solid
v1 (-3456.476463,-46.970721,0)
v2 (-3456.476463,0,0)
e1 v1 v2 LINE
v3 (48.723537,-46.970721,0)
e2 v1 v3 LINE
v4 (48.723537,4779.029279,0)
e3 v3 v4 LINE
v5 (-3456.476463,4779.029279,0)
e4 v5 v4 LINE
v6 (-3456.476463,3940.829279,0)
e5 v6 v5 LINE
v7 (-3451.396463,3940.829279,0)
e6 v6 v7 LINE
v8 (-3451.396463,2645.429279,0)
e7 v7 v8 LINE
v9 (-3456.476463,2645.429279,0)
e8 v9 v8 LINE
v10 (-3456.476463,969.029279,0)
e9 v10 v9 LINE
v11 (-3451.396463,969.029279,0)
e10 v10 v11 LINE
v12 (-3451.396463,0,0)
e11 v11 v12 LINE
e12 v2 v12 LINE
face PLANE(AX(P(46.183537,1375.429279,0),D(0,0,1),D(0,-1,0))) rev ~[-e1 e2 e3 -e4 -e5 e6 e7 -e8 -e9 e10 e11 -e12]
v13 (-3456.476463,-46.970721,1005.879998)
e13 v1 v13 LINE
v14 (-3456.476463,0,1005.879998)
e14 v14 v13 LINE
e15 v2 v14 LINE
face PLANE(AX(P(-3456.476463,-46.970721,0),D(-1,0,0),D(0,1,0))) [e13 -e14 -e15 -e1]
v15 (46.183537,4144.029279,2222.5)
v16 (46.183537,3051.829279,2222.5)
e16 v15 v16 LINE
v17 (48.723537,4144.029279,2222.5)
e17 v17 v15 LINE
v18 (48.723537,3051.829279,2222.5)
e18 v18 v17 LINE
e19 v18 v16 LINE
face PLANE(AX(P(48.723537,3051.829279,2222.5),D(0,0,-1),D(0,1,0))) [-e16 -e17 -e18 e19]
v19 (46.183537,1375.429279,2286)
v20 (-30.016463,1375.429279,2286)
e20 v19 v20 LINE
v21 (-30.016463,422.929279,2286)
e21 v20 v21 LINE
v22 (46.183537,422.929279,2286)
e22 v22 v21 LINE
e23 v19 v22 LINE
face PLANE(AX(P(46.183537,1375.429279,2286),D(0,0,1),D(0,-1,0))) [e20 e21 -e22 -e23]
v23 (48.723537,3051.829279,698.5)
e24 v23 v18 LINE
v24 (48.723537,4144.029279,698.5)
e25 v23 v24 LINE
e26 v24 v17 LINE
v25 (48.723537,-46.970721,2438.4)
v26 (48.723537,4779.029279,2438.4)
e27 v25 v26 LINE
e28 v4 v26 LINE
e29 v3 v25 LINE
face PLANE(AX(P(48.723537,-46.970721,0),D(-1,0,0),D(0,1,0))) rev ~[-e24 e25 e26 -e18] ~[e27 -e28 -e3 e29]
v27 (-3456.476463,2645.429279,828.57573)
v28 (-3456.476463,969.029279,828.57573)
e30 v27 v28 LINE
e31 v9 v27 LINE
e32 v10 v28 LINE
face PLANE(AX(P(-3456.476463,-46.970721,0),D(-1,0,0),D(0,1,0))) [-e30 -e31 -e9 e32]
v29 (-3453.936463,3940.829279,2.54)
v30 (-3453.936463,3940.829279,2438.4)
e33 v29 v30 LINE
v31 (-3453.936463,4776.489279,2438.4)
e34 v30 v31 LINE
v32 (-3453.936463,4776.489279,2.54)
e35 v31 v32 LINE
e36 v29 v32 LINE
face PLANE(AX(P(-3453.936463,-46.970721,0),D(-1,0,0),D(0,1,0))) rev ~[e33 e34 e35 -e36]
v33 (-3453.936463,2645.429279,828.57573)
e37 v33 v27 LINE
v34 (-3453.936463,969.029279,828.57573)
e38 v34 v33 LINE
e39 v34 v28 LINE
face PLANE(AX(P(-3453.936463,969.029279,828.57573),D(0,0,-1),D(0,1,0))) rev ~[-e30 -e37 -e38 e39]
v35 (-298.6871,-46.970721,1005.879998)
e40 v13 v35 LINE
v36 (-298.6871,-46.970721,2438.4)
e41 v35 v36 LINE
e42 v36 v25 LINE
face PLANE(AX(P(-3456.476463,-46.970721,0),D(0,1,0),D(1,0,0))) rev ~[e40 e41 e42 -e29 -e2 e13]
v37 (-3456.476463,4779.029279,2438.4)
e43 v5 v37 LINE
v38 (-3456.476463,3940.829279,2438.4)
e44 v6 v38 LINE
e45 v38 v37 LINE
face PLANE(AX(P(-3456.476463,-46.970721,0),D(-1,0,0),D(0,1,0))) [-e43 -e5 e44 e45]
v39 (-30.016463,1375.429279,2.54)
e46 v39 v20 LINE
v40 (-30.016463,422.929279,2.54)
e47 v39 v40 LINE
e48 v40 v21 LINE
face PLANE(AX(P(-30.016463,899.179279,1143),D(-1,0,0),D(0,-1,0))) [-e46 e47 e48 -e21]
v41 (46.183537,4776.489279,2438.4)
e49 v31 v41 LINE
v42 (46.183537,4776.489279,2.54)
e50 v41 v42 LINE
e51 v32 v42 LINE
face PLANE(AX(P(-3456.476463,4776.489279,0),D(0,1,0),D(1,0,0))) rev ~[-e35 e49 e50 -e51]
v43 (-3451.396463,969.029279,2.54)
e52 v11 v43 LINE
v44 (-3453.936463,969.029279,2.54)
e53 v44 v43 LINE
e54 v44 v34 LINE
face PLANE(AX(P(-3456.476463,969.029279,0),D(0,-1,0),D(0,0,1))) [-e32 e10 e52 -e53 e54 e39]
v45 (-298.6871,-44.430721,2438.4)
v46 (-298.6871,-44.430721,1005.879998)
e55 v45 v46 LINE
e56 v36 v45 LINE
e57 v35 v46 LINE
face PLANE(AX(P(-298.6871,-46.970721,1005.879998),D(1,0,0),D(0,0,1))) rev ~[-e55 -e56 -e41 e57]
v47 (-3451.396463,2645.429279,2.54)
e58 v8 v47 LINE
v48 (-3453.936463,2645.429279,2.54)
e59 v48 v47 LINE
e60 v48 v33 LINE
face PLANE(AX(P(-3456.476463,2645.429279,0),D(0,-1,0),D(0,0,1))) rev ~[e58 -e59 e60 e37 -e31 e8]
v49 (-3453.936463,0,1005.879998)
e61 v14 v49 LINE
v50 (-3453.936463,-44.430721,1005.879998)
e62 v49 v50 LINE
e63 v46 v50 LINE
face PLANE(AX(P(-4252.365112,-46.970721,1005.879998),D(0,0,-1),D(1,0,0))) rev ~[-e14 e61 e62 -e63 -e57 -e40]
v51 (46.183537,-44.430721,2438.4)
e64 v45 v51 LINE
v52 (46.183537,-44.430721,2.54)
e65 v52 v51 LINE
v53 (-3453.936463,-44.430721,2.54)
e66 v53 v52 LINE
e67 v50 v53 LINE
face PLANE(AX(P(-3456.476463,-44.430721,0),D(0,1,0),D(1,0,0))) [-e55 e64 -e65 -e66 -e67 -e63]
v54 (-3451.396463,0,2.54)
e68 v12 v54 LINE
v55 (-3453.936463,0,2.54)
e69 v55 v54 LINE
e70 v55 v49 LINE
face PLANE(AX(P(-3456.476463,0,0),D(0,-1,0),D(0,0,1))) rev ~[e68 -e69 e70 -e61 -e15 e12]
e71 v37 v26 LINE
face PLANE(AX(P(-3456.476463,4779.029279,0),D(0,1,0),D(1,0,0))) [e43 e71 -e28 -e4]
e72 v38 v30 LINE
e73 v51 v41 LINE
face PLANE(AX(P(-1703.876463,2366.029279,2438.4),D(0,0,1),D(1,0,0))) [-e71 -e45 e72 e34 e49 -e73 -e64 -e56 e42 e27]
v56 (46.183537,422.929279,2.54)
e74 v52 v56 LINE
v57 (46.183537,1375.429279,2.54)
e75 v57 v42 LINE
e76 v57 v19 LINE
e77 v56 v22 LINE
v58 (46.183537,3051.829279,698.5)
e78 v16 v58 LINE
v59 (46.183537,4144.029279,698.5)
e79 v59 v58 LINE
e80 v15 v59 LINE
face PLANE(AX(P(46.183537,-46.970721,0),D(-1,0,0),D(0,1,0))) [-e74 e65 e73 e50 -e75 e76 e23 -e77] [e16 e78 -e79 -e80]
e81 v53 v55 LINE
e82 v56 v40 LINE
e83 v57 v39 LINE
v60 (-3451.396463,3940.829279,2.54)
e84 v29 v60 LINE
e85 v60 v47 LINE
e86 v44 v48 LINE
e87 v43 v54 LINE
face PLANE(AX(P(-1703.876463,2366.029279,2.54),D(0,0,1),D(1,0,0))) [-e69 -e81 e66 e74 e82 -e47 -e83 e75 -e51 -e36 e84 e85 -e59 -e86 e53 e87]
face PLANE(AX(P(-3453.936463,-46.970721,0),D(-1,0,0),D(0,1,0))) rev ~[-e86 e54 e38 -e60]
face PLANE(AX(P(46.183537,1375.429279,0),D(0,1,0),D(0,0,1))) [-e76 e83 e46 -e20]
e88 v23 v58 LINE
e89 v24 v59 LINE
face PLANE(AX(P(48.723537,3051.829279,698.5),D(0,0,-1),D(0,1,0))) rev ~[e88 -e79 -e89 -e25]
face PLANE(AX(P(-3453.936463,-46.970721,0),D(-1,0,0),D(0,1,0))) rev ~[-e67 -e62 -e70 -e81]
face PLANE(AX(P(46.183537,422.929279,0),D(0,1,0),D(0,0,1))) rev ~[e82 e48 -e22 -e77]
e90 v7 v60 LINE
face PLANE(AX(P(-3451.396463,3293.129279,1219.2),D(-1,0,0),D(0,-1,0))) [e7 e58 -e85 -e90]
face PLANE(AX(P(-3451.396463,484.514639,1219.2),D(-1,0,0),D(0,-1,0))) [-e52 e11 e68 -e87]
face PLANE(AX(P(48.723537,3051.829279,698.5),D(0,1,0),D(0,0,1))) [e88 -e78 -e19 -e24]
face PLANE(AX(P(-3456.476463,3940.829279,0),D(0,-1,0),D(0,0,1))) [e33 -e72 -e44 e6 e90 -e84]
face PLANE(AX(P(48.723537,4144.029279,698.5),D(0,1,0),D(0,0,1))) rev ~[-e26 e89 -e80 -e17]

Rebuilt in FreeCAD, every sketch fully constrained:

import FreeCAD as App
import Part
import Sketcher

V = App.Vector
Q = App.Units.Quantity


def faces_at(feature, points):
    """Names of the faces that lie closest to the given points."""
    faces = feature.Shape.Faces
    near = lambda p: min(range(len(faces)), key=lambda i: faces[i].distToShape(Part.Vertex(*p))[0])
    return sorted({f"Face{near(p) + 1}" for p in points})

doc = App.newDocument("Part")
body = doc.addObject("PartDesign::Body", "Body")

# Sketch on XY plane
sketch1 = body.newObject("Sketcher::SketchObject", "Sketch")
sketch1.AttachmentSupport = (doc.getObject("XY_Plane"), [""])
sketch1.MapMode = "FlatFace"
sketch1.addGeometry(Part.LineSegment(V(-3456, 4779, 0), V(-3456, -47, 0)), False)
sketch1.addGeometry(Part.LineSegment(V(-3456, -47, 0), V(49, -47, 0)), False)
sketch1.addGeometry(Part.LineSegment(V(49, -47, 0), V(49, 4779, 0)), False)
sketch1.addGeometry(Part.LineSegment(V(49, 4779, 0), V(-3456, 4779, 0)), False)
sketch1.addConstraint(Sketcher.Constraint("Coincident", 0, 2, 1, 1))
sketch1.addConstraint(Sketcher.Constraint("Coincident", 1, 2, 2, 1))
sketch1.addConstraint(Sketcher.Constraint("Coincident", 2, 2, 3, 1))
sketch1.addConstraint(Sketcher.Constraint("Coincident", 3, 2, 0, 1))
sketch1.addConstraint(Sketcher.Constraint("Vertical", 0))
sketch1.addConstraint(Sketcher.Constraint("Horizontal", 1))
sketch1.addConstraint(Sketcher.Constraint("Vertical", 2))
sketch1.addConstraint(Sketcher.Constraint("Horizontal", 3))
sketch1.addConstraint(Sketcher.Constraint("DistanceX", 1, 1, 1, 2, Q("138 in")))
sketch1.addConstraint(Sketcher.Constraint("DistanceY", 0, 2, 0, 1, Q("190 in")))
sketch1.addConstraint(Sketcher.Constraint("DistanceY", 0, 2, -1, 1, Q("46.970721 mm")))
sketch1.addConstraint(Sketcher.Constraint("DistanceX", 0, 2, -1, 1, Q("3456.476463 mm")))
pad1 = body.newObject("PartDesign::Pad", "Pad")
pad1.Profile = sketch1
pad1.Length = Q("96 in")
doc.recompute()

thickness = body.newObject("PartDesign::Thickness", "Thickness")
thickness.Base = (pad1, faces_at(pad1, [(-1703.876, 2366.029, 2438.4)]))
thickness.Value = Q("0.1 in")
thickness.Reversed = True
thickness.Join = "Arc"

# Sketch on YZ plane
sketch2 = body.newObject("Sketcher::SketchObject", "Sketch001")
sketch2.AttachmentSupport = (doc.getObject("YZ_Plane"), [""])
sketch2.MapMode = "FlatFace"
sketch2.AttachmentOffset = App.Placement(V(0, 0, -3456.476463), App.Rotation())
sketch2.addGeometry(Part.LineSegment(V(3941, 2438, 0), V(3941, 0, 0)), False)
sketch2.addGeometry(Part.LineSegment(V(3941, 0, 0), V(2645, 0, 0)), False)
sketch2.addGeometry(Part.LineSegment(V(2645, 0, 0), V(2645, 2438, 0)), False)
sketch2.addGeometry(Part.LineSegment(V(2645, 2438, 0), V(3941, 2438, 0)), False)
sketch2.addGeometry(Part.LineSegment(V(969, 2438, 0), V(969, 0, 0)), False)
sketch2.addGeometry(Part.LineSegment(V(969, 0, 0), V(0, 0, 0)), False)
sketch2.addGeometry(Part.LineSegment(V(0, 0, 0), V(0, 2438, 0)), False)
sketch2.addGeometry(Part.LineSegment(V(0, 2438, 0), V(969, 2438, 0)), False)
sketch2.addConstraint(Sketcher.Constraint("Coincident", 0, 2, 1, 1))
sketch2.addConstraint(Sketcher.Constraint("Coincident", 1, 2, 2, 1))
sketch2.addConstraint(Sketcher.Constraint("Coincident", 2, 2, 3, 1))
sketch2.addConstraint(Sketcher.Constraint("Coincident", 3, 2, 0, 1))
sketch2.addConstraint(Sketcher.Constraint("Coincident", 4, 2, 5, 1))
sketch2.addConstraint(Sketcher.Constraint("Coincident", 5, 2, 6, 1))
sketch2.addConstraint(Sketcher.Constraint("Coincident", 6, 2, 7, 1))
sketch2.addConstraint(Sketcher.Constraint("Coincident", 7, 2, 4, 1))
sketch2.addConstraint(Sketcher.Constraint("Vertical", 0))
sketch2.addConstraint(Sketcher.Constraint("Horizontal", 1))
sketch2.addConstraint(Sketcher.Constraint("Vertical", 2))
sketch2.addConstraint(Sketcher.Constraint("Horizontal", 3))
sketch2.addConstraint(Sketcher.Constraint("Vertical", 4))
sketch2.addConstraint(Sketcher.Constraint("Horizontal", 5))
sketch2.addConstraint(Sketcher.Constraint("Vertical", 6))
sketch2.addConstraint(Sketcher.Constraint("Horizontal", 7))
sketch2.addConstraint(Sketcher.Constraint("Coincident", 5, 2, -1, 1))
sketch2.addConstraint(Sketcher.Constraint("PointOnObject", 0, 2, -1))
sketch2.addConstraint(Sketcher.Constraint("Horizontal", 3, 2, 6, 2))
sketch2.addConstraint(Sketcher.Constraint("DistanceX", 1, 2, 1, 1, Q("51 in")))
sketch2.addConstraint(Sketcher.Constraint("DistanceY", 0, 2, 0, 1, Q("96 in")))
sketch2.addConstraint(Sketcher.Constraint("DistanceX", 4, 2, 1, 2, Q("66 in")))
sketch2.addConstraint(Sketcher.Constraint("DistanceX", 5, 2, 5, 1, Q("969.029279 mm")))
pocket1 = body.newObject("PartDesign::Pocket", "Pocket")
pocket1.Profile = sketch2
pocket1.Length = Q("0.2 in")
pocket1.Reversed = True

# Sketch on YZ plane
sketch3 = body.newObject("Sketcher::SketchObject", "Sketch002")
sketch3.AttachmentSupport = (doc.getObject("YZ_Plane"), [""])
sketch3.MapMode = "FlatFace"
sketch3.AttachmentOffset = App.Placement(V(0, 0, 48.723537), App.Rotation())
sketch3.addGeometry(Part.LineSegment(V(3052, 2222, 0), V(3052, 698, 0)), False)
sketch3.addGeometry(Part.LineSegment(V(3052, 698, 0), V(4144, 698, 0)), False)
sketch3.addGeometry(Part.LineSegment(V(4144, 698, 0), V(4144, 2222, 0)), False)
sketch3.addGeometry(Part.LineSegment(V(4144, 2222, 0), V(3052, 2222, 0)), False)
sketch3.addConstraint(Sketcher.Constraint("Coincident", 0, 2, 1, 1))
sketch3.addConstraint(Sketcher.Constraint("Coincident", 1, 2, 2, 1))
sketch3.addConstraint(Sketcher.Constraint("Coincident", 2, 2, 3, 1))
sketch3.addConstraint(Sketcher.Constraint("Coincident", 3, 2, 0, 1))
sketch3.addConstraint(Sketcher.Constraint("Vertical", 0))
sketch3.addConstraint(Sketcher.Constraint("Horizontal", 1))
sketch3.addConstraint(Sketcher.Constraint("Vertical", 2))
sketch3.addConstraint(Sketcher.Constraint("Horizontal", 3))
sketch3.addConstraint(Sketcher.Constraint("DistanceX", 1, 1, 1, 2, Q("43 in")))
sketch3.addConstraint(Sketcher.Constraint("DistanceY", 0, 2, 0, 1, Q("60 in")))
sketch3.addConstraint(Sketcher.Constraint("DistanceY", -1, 1, 0, 2, Q("27.5 in")))
sketch3.addConstraint(Sketcher.Constraint("DistanceX", -1, 1, 0, 2, Q("3051.829279 mm")))
pocket2 = body.newObject("PartDesign::Pocket", "Pocket001")
pocket2.Profile = sketch3
pocket2.Length = Q("1 in")

# Sketch on YZ plane
sketch4 = body.newObject("Sketcher::SketchObject", "Sketch003")
sketch4.AttachmentSupport = (doc.getObject("YZ_Plane"), [""])
sketch4.MapMode = "FlatFace"
sketch4.AttachmentOffset = App.Placement(V(0, 0, 46.183537), App.Rotation())
sketch4.addGeometry(Part.LineSegment(V(1375, 2286, 0), V(1375, 0, 0)), False)
sketch4.addGeometry(Part.LineSegment(V(1375, 0, 0), V(423, 0, 0)), False)
sketch4.addGeometry(Part.LineSegment(V(423, 0, 0), V(423, 2286, 0)), False)
sketch4.addGeometry(Part.LineSegment(V(423, 2286, 0), V(1375, 2286, 0)), False)
sketch4.addConstraint(Sketcher.Constraint("Coincident", 0, 2, 1, 1))
sketch4.addConstraint(Sketcher.Constraint("Coincident", 1, 2, 2, 1))
sketch4.addConstraint(Sketcher.Constraint("Coincident", 2, 2, 3, 1))
sketch4.addConstraint(Sketcher.Constraint("Coincident", 3, 2, 0, 1))
sketch4.addConstraint(Sketcher.Constraint("Vertical", 0))
sketch4.addConstraint(Sketcher.Constraint("Horizontal", 1))
sketch4.addConstraint(Sketcher.Constraint("Vertical", 2))
sketch4.addConstraint(Sketcher.Constraint("Horizontal", 3))
sketch4.addConstraint(Sketcher.Constraint("PointOnObject", 0, 2, -1))
sketch4.addConstraint(Sketcher.Constraint("DistanceY", 0, 2, 0, 1, Q("90 in")))
sketch4.addConstraint(Sketcher.Constraint("DistanceX", 1, 2, 1, 1, Q("37.5 in")))
sketch4.addConstraint(Sketcher.Constraint("DistanceX", -1, 1, 0, 2, Q("1375.429279 mm")))
pad2 = body.newObject("PartDesign::Pad", "Pad001")
pad2.Profile = sketch4
pad2.Length = Q("3 in")
pad2.Reversed = True

# Sketch on YZ plane
sketch5 = body.newObject("Sketcher::SketchObject", "Sketch004")
sketch5.AttachmentSupport = (doc.getObject("YZ_Plane"), [""])
sketch5.MapMode = "FlatFace"
sketch5.AttachmentOffset = App.Placement(V(0, 0, -3453.936463), App.Rotation())
sketch5.addGeometry(Part.LineSegment(V(969, 2438, 0), V(969, 829, 0)), False)
sketch5.addGeometry(Part.LineSegment(V(969, 829, 0), V(2645, 829, 0)), False)
sketch5.addGeometry(Part.LineSegment(V(2645, 829, 0), V(2645, 2438, 0)), False)
sketch5.addGeometry(Part.LineSegment(V(2645, 2438, 0), V(969, 2438, 0)), False)
sketch5.addConstraint(Sketcher.Constraint("Coincident", 0, 2, 1, 1))
sketch5.addConstraint(Sketcher.Constraint("Coincident", 1, 2, 2, 1))
sketch5.addConstraint(Sketcher.Constraint("Coincident", 2, 2, 3, 1))
sketch5.addConstraint(Sketcher.Constraint("Coincident", 3, 2, 0, 1))
sketch5.addConstraint(Sketcher.Constraint("Vertical", 0))
sketch5.addConstraint(Sketcher.Constraint("Horizontal", 1))
sketch5.addConstraint(Sketcher.Constraint("Vertical", 2))
sketch5.addConstraint(Sketcher.Constraint("Horizontal", 3))
sketch5.addConstraint(Sketcher.Constraint("DistanceX", 1, 1, 1, 2, Q("66 in")))
sketch5.addConstraint(Sketcher.Constraint("DistanceY", -1, 1, 2, 2, Q("96 in")))
sketch5.addConstraint(Sketcher.Constraint("DistanceY", 0, 2, 0, 1, Q("1609.82427 mm")))
sketch5.addConstraint(Sketcher.Constraint("DistanceX", -1, 1, 0, 2, Q("969.029279 mm")))
pocket3 = body.newObject("PartDesign::Pocket", "Pocket002")
pocket3.Profile = sketch5
pocket3.Length = Q("1 in")

# Sketch on XZ plane
sketch6 = body.newObject("Sketcher::SketchObject", "Sketch005")
sketch6.AttachmentSupport = (doc.getObject("XZ_Plane"), [""])
sketch6.MapMode = "FlatFace"
sketch6.AttachmentOffset = App.Placement(V(0, 0, 46.970721), App.Rotation())
sketch6.addGeometry(Part.LineSegment(V(-4252, 2438, 0), V(-4252, 1006, 0)), False)
sketch6.addGeometry(Part.LineSegment(V(-4252, 1006, 0), V(-299, 1006, 0)), False)
sketch6.addGeometry(Part.LineSegment(V(-299, 1006, 0), V(-299, 2438, 0)), False)
sketch6.addGeometry(Part.LineSegment(V(-299, 2438, 0), V(-4252, 2438, 0)), False)
sketch6.addConstraint(Sketcher.Constraint("Coincident", 0, 2, 1, 1))
sketch6.addConstraint(Sketcher.Constraint("Coincident", 1, 2, 2, 1))
sketch6.addConstraint(Sketcher.Constraint("Coincident", 2, 2, 3, 1))
sketch6.addConstraint(Sketcher.Constraint("Coincident", 3, 2, 0, 1))
sketch6.addConstraint(Sketcher.Constraint("Vertical", 0))
sketch6.addConstraint(Sketcher.Constraint("Horizontal", 1))
sketch6.addConstraint(Sketcher.Constraint("Vertical", 2))
sketch6.addConstraint(Sketcher.Constraint("Horizontal", 3))
sketch6.addConstraint(Sketcher.Constraint("DistanceY", -1, 1, 2, 2, Q("96 in")))
sketch6.addConstraint(Sketcher.Constraint("DistanceY", 0, 2, 0, 1, Q("1432.520002 mm")))
sketch6.addConstraint(Sketcher.Constraint("DistanceX", 1, 1, 1, 2, Q("3953.678012 mm")))
sketch6.addConstraint(Sketcher.Constraint("DistanceX", 1, 2, -1, 1, Q("298.6871 mm")))
pocket4 = body.newObject("PartDesign::Pocket", "Pocket003")
pocket4.Profile = sketch6
pocket4.Length = Q("5 in")
body2 = doc.addObject("PartDesign::Body", "Body001")

# Sketch on XY plane
sketch7 = body2.newObject("Sketcher::SketchObject", "Sketch006")
sketch7.AttachmentSupport = (doc.getObject("XY_Plane001"), [""])
sketch7.MapMode = "FlatFace"
sketch7.AttachmentOffset = App.Placement(V(0, 0, 68 * 25.4), App.Rotation())
sketch7.addGeometry(Part.Circle(V(-3388, -986, 0), V(0, 0, 1), 279), False)
sketch7.addConstraint(Sketcher.Constraint("Diameter", 0, Q("22 in")))
sketch7.addConstraint(Sketcher.Constraint("DistanceX", 0, 3, -1, 1, Q("3387.935638 mm")))
sketch7.addConstraint(Sketcher.Constraint("DistanceY", 0, 3, -1, 1, Q("986.366987 mm")))
pad3 = body2.newObject("PartDesign::Pad", "Pad002")
pad3.Profile = sketch7
pad3.Length = Q("12 in")
pad3.Reversed = True
body2.Visibility = False

doc.recompute()
